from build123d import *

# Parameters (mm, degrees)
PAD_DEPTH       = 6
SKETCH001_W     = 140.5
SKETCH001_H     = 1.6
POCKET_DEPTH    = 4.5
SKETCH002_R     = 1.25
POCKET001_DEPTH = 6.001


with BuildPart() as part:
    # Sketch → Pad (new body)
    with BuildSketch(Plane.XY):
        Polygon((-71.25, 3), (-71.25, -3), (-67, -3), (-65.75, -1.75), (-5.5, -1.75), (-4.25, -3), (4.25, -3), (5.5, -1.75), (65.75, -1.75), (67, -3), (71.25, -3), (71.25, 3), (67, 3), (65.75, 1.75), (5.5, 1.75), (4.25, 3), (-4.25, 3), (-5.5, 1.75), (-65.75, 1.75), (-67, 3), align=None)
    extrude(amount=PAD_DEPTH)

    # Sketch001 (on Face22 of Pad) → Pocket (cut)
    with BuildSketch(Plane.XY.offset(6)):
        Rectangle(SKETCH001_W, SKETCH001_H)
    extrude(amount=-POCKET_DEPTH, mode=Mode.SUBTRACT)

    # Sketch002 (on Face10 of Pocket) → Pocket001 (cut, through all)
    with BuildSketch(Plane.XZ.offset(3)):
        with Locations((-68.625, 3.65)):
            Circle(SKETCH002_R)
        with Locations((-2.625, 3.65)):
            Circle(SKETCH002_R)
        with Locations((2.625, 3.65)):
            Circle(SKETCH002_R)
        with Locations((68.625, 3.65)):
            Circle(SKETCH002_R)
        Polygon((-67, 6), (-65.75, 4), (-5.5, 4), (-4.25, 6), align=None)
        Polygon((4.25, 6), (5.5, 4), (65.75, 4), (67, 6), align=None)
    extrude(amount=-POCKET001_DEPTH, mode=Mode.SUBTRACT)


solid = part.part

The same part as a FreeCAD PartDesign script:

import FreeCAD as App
import Part
import Sketcher
from FreeCAD import Vector


def add_polygon(sketch, points):
    """Adds a closed chain of lines whose ends are joined by coincident constraints."""
    first, n = sketch.GeometryCount, len(points)
    for a, b in zip(points, points[1:] + points[:1]):
        sketch.addGeometry(Part.LineSegment(App.Vector(*a, 0), App.Vector(*b, 0)), False)
    for i in range(n):
        sketch.addConstraint(Sketcher.Constraint("Coincident", first + i, 2, first + (i + 1) % n, 1))

doc = App.newDocument("Part")
params = doc.addObject("Spreadsheet::Sheet", "Params")
for row, (alias, value) in enumerate([
    ("sketch1_height", "6 mm"),
    ("sketch1_width", "8.5 mm"),
    ("pad1_length", "6 mm"),
    ("sketch2_width", "140.5 mm"),
    ("sketch2_height", "1.6 mm"),
    ("pocket1_length", "4.5 mm"),
    ("sketch3_diameter", "2.5 mm"),
], start=1):
    params.set(f"A{row}", alias)
    params.set(f"B{row}", "=" + value)
    params.setAlias(f"B{row}", alias)

body = doc.addObject("PartDesign::Body", "Body")

# Sketch on XY plane
sketch1 = body.newObject("Sketcher::SketchObject", "Sketch")
sketch1.AttachmentSupport = (doc.getObject("XY_Plane"), [""])
sketch1.MapMode = "FlatFace"
add_polygon(sketch1, [(-71.25, 3), (-71.25, -3), (-67, -3), (-65.75, -1.75), (-5.5, -1.75), (-4.25, -3), (4.25, -3), (5.5, -1.75), (65.75, -1.75), (67, -3), (71.25, -3), (71.25, 3), (67, 3), (65.75, 1.75), (5.5, 1.75), (4.25, 3), (-4.25, 3), (-5.5, 1.75), (-65.75, 1.75), (-67, 3)])  # lines 0-19
sketch1.addConstraint([
    Sketcher.Constraint("Vertical", 0),
    Sketcher.Constraint("Horizontal", 1),
    Sketcher.Constraint("Horizontal", 3),
    Sketcher.Constraint("Horizontal", 5),
    Sketcher.Constraint("Horizontal", 7),
    Sketcher.Constraint("Horizontal", 9),
    Sketcher.Constraint("Vertical", 10),
    Sketcher.Constraint("Horizontal", 11),
    Sketcher.Constraint("Horizontal", 13),
    Sketcher.Constraint("Horizontal", 15),
    Sketcher.Constraint("Horizontal", 17),
    Sketcher.Constraint("Horizontal", 19),
    Sketcher.Constraint("Symmetric", 0, 2, 10, 2, -1, 1),
    Sketcher.Constraint("Symmetric", 2, 2, 12, 2, -1, 1),
    Sketcher.Constraint("Symmetric", 4, 2, 14, 2, -1, 1),
    Sketcher.Constraint("Symmetric", 6, 2, 16, 2, -1, 1),
    Sketcher.Constraint("Symmetric", 8, 2, 18, 2, -1, 1),
    Sketcher.Constraint("Symmetric", 3, 2, 6, 2, -2),
    Sketcher.Constraint("Symmetric", 1, 2, 8, 2, -2),
    Sketcher.Constraint("Perpendicular", 2, 4),
    Sketcher.Constraint("Perpendicular", 4, 6),
    Sketcher.Constraint("Perpendicular", 6, 8),
    Sketcher.Constraint("Perpendicular", 8, 12),
    Sketcher.Constraint("Perpendicular", 12, 14),
    Sketcher.Constraint("Perpendicular", 14, 16),
    Sketcher.Constraint("Perpendicular", 16, 18),
    Sketcher.Constraint("Horizontal", 1, 2, 4, 2),
    Sketcher.Constraint("Vertical", 7, 2, 12, 2),
    Sketcher.Constraint("DistanceY", 0, 2, 0, 1, 6.0),
    Sketcher.Constraint("DistanceX", 5, 1, 5, 2, 8.5),
    Sketcher.Constraint("DistanceX", 1, 2, -1, 1, 67.0),
    Sketcher.Constraint("DistanceX", 0, 2, 4, 2, 67.0),
    Sketcher.Constraint("DistanceX", 2, 2, 5, 2, 70.0),
])
sketch1.setExpression("Constraints[48]", "Params.sketch1_height")
sketch1.setExpression("Constraints[49]", "Params.sketch1_width")
pad1 = body.newObject("PartDesign::Pad", "Pad")
pad1.Profile = sketch1
pad1.setExpression("Length", "Params.pad1_length")

# Sketch on XY plane
sketch2 = body.newObject("Sketcher::SketchObject", "Sketch001")
sketch2.AttachmentSupport = (doc.getObject("XY_Plane"), [""])
sketch2.MapMode = "FlatFace"
sketch2.AttachmentOffset = App.Placement(Vector(0, 0, 6), App.Rotation())
add_polygon(sketch2, [(-70.25, 0.8), (-70.25, -0.8), (70.25, -0.8), (70.25, 0.8)])  # lines 0-3
sketch2.addConstraint([
    Sketcher.Constraint("Vertical", 0),
    Sketcher.Constraint("Horizontal", 1),
    Sketcher.Constraint("Vertical", 2),
    Sketcher.Constraint("Horizontal", 3),
    Sketcher.Constraint("Symmetric", 0, 2, 2, 2, -1, 1),
    Sketcher.Constraint("DistanceX", 1, 1, 1, 2, 140.5),
    Sketcher.Constraint("DistanceY", 0, 2, 0, 1, 1.6),
])
sketch2.setExpression("Constraints[9]", "Params.sketch2_width")
sketch2.setExpression("Constraints[10]", "Params.sketch2_height")
pocket1 = body.newObject("PartDesign::Pocket", "Pocket")
pocket1.Profile = sketch2
pocket1.setExpression("Length", "Params.pocket1_length")

# Sketch on XZ plane
sketch3 = body.newObject("Sketcher::SketchObject", "Sketch002")
sketch3.AttachmentSupport = (doc.getObject("XZ_Plane"), [""])
sketch3.MapMode = "FlatFace"
sketch3.AttachmentOffset = App.Placement(Vector(0, 0, 3), App.Rotation())
sketch3.addGeometry(Part.Circle(Vector(-68.625, 3.65, 0), Vector(0, 0, 1), 1.25), False)  # 0
sketch3.addGeometry(Part.Circle(Vector(-2.625, 3.65, 0), Vector(0, 0, 1), 1.25), False)  # 1
sketch3.addGeometry(Part.Circle(Vector(2.625, 3.65, 0), Vector(0, 0, 1), 1.25), False)  # 2
sketch3.addGeometry(Part.Circle(Vector(68.625, 3.65, 0), Vector(0, 0, 1), 1.25), False)  # 3
add_polygon(sketch3, [(-67, 6), (-65.75, 4), (-5.5, 4), (-4.25, 6)])  # lines 4-7
add_polygon(sketch3, [(4.25, 6), (5.5, 4), (65.75, 4), (67, 6)])  # lines 8-11
sketch3.addConstraint([
    Sketcher.Constraint("Horizontal", 5),
    Sketcher.Constraint("Horizontal", 7),
    Sketcher.Constraint("Horizontal", 9),
    Sketcher.Constraint("Horizontal", 11),
    Sketcher.Constraint("Equal", 0, 1),
    Sketcher.Constraint("Equal", 1, 2),
    Sketcher.Constraint("Equal", 2, 3),
    Sketcher.Constraint("Symmetric", 1, 3, 2, 3, -2),
    Sketcher.Constraint("Symmetric", 0, 3, 3, 3, -2),
    Sketcher.Constraint("Symmetric", 5, 2, 8, 2, -2),
    Sketcher.Constraint("Symmetric", 7, 2, 10, 2, -2),
    Sketcher.Constraint("Parallel", 4, 8),
    Sketcher.Constraint("Parallel", 6, 10),
    Sketcher.Constraint("Horizontal", 0, 3, 1, 3),
    Sketcher.Constraint("Equal", 5, 9),
    Sketcher.Constraint("Diameter", 0, 2.5),
    Sketcher.Constraint("DistanceY", -1, 1, 4, 2, 4.0),
    Sketcher.Constraint("DistanceY", -1, 1, 6, 2, 6.0),
    Sketcher.Constraint("DistanceX", 7, 2, -1, 1, 67.0),
    Sketcher.Constraint("DistanceX", 0, 3, 1, 3, 66.0),
    Sketcher.Constraint("DistanceX", 5, 2, 8, 2, 11.0),
    Sketcher.Constraint("DistanceX", 6, 2, 9, 2, 70.0),
    Sketcher.Constraint("DistanceY", -1, 1, 0, 3, 3.65),
    Sketcher.Constraint("DistanceX", 1, 3, 2, 3, 5.25),
])
sketch3.setExpression("Constraints[23]", "Params.sketch3_diameter")
pocket2 = body.newObject("PartDesign::Pocket", "Pocket001")
pocket2.Profile = sketch3
pocket2.Type = "ThroughAll"

doc.recompute()
